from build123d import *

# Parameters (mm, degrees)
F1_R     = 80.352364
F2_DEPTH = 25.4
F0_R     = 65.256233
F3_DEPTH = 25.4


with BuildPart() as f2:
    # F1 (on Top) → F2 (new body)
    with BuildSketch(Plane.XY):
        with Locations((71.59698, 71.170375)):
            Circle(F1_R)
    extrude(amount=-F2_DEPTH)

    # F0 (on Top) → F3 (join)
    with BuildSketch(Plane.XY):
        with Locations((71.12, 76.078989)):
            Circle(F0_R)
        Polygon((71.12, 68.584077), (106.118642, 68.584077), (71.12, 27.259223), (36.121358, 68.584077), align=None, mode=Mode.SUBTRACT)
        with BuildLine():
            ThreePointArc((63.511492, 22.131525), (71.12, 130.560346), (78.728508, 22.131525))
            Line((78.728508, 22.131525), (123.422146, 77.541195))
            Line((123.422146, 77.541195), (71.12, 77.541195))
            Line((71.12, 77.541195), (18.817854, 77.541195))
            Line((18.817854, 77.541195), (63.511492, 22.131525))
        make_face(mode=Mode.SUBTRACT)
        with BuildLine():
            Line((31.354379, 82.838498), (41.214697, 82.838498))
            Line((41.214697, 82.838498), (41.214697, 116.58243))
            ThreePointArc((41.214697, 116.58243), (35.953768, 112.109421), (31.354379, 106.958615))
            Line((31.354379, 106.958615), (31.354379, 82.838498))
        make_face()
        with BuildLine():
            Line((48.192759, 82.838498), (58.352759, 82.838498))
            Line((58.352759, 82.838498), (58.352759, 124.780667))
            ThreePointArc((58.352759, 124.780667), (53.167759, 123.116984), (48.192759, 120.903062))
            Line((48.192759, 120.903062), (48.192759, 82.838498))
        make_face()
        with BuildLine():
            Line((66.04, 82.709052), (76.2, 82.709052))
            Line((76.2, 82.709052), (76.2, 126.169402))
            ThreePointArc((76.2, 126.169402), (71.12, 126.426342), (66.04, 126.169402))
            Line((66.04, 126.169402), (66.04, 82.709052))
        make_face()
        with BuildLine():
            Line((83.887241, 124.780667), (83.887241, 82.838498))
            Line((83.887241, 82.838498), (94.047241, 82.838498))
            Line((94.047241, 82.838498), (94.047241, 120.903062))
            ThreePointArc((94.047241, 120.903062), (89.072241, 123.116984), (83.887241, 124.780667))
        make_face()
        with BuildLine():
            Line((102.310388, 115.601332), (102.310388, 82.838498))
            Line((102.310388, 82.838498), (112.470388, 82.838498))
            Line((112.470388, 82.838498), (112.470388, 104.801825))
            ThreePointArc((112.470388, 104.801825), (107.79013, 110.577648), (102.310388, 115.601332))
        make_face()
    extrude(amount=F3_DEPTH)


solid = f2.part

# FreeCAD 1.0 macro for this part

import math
import FreeCAD as App
import Part
import Sketcher

V = App.Vector
Q = App.Units.Quantity

doc = App.newDocument("Part")
body = doc.addObject("PartDesign::Body", "Body")

# Sketch on XY plane
sketch1 = doc.addObject("Sketcher::SketchObject", "Sketch")
body.addObject(sketch1)
sketch1.AttachmentSupport = (doc.XY_Plane, [""])
sketch1.MapMode = "FlatFace"
sketch1.addGeometry(Part.Circle(V(72, 71, 0), V(0, 0, 1), 80), False)
sketch1.addConstraint([
    Sketcher.Constraint("Diameter", 0, Q("160.704728 mm")),
    Sketcher.Constraint("DistanceX", -1, 1, 0, 3, Q("71.59698 mm")),
    Sketcher.Constraint("DistanceY", -1, 1, 0, 3, Q("71.170375 mm")),
])
pad1 = doc.addObject("PartDesign::Pad", "Pad")
body.addObject(pad1)
pad1.Profile = sketch1
pad1.Length = Q("1 in")
pad1.Reversed = True

# Sketch on XY plane
sketch2 = doc.addObject("Sketcher::SketchObject", "Sketch001")
body.addObject(sketch2)
sketch2.AttachmentSupport = (doc.XY_Plane, [""])
sketch2.MapMode = "FlatFace"
sketch2.addGeometry([
    Part.Circle(V(71, 76, 0), V(0, 0, 1), 65),  # 0
    Part.LineSegment(V(36, 69, 0), V(106, 69, 0)),  # 1
    Part.LineSegment(V(106, 69, 0), V(71, 27, 0)),  # 2
    Part.LineSegment(V(71, 27, 0), V(36, 69, 0)),  # 3
    Part.LineSegment(V(19, 78, 0), V(64, 22, 0)),  # 4
    Part.ArcOfCircle(Part.Circle(V(71, 76, 0), V(0, 0, 1), 54), math.radians(-82), math.radians(262)),  # 5
    Part.LineSegment(V(79, 22, 0), V(123, 78, 0)),  # 6
    Part.LineSegment(V(123, 78, 0), V(19, 78, 0)),  # 7
    Part.LineSegment(V(31, 83, 0), V(41, 83, 0)),  # 8
    Part.LineSegment(V(41, 83, 0), V(41, 117, 0)),  # 9
    Part.ArcOfCircle(Part.Circle(V(71, 76, 0), V(0, 0, 1), 50), math.radians(126.44), math.radians(142.17)),  # 10
    Part.LineSegment(V(31, 107, 0), V(31, 83, 0)),  # 11
    Part.LineSegment(V(48, 83, 0), V(58, 83, 0)),  # 12
    Part.LineSegment(V(58, 83, 0), V(58, 125, 0)),  # 13
    Part.ArcOfCircle(Part.Circle(V(71, 76, 0), V(0, 0, 1), 50), math.radians(104.69), math.radians(117.09)),  # 14
    Part.LineSegment(V(48, 121, 0), V(48, 83, 0)),  # 15
    Part.LineSegment(V(66, 83, 0), V(76, 83, 0)),  # 16
    Part.LineSegment(V(76, 83, 0), V(76, 126, 0)),  # 17
    Part.ArcOfCircle(Part.Circle(V(71, 76, 0), V(0, 0, 1), 50), math.radians(84.21), math.radians(95.79)),  # 18
    Part.LineSegment(V(66, 126, 0), V(66, 83, 0)),  # 19
    Part.LineSegment(V(84, 125, 0), V(84, 83, 0)),  # 20
    Part.LineSegment(V(84, 83, 0), V(94, 83, 0)),  # 21
    Part.LineSegment(V(94, 83, 0), V(94, 121, 0)),  # 22
    Part.ArcOfCircle(Part.Circle(V(71, 76, 0), V(0, 0, 1), 50), math.radians(62.91), math.radians(75.31)),  # 23
    Part.LineSegment(V(102, 116, 0), V(102, 83, 0)),  # 24
    Part.LineSegment(V(102, 83, 0), V(112, 83, 0)),  # 25
    Part.LineSegment(V(112, 83, 0), V(112, 105, 0)),  # 26
    Part.ArcOfCircle(Part.Circle(V(71, 76, 0), V(0, 0, 1), 50), math.radians(34.78), math.radians(51.72)),  # 27
], False)
sketch2.addConstraint([
    Sketcher.Constraint("Coincident", 1, 2, 2, 1),
    Sketcher.Constraint("Coincident", 2, 2, 3, 1),
    Sketcher.Constraint("Coincident", 3, 2, 1, 1),
    Sketcher.Constraint("Coincident", 4, 2, 5, 2),
    Sketcher.Constraint("Coincident", 5, 1, 6, 1),
    Sketcher.Constraint("Coincident", 6, 2, 7, 1),
    Sketcher.Constraint("Coincident", 7, 2, 4, 1),
    Sketcher.Constraint("Coincident", 8, 2, 9, 1),
    Sketcher.Constraint("Coincident", 9, 2, 10, 1),
    Sketcher.Constraint("Coincident", 10, 2, 11, 1),
    Sketcher.Constraint("Coincident", 11, 2, 8, 1),
    Sketcher.Constraint("Coincident", 12, 2, 13, 1),
    Sketcher.Constraint("Coincident", 13, 2, 14, 1),
    Sketcher.Constraint("Coincident", 14, 2, 15, 1),
    Sketcher.Constraint("Coincident", 15, 2, 12, 1),
    Sketcher.Constraint("Coincident", 16, 2, 17, 1),
    Sketcher.Constraint("Coincident", 17, 2, 18, 1),
    Sketcher.Constraint("Coincident", 18, 2, 19, 1),
    Sketcher.Constraint("Coincident", 19, 2, 16, 1),
    Sketcher.Constraint("Coincident", 20, 2, 21, 1),
    Sketcher.Constraint("Coincident", 21, 2, 22, 1),
    Sketcher.Constraint("Coincident", 22, 2, 23, 1),
    Sketcher.Constraint("Coincident", 23, 2, 20, 1),
    Sketcher.Constraint("Coincident", 24, 2, 25, 1),
    Sketcher.Constraint("Coincident", 25, 2, 26, 1),
    Sketcher.Constraint("Coincident", 26, 2, 27, 1),
    Sketcher.Constraint("Coincident", 27, 2, 24, 1),
    Sketcher.Constraint("Horizontal", 1),
    Sketcher.Constraint("Horizontal", 7),
    Sketcher.Constraint("Horizontal", 8),
    Sketcher.Constraint("Vertical", 9),
    Sketcher.Constraint("Vertical", 11),
    Sketcher.Constraint("Horizontal", 12),
    Sketcher.Constraint("Vertical", 13),
    Sketcher.Constraint("Vertical", 15),
    Sketcher.Constraint("Horizontal", 16),
    Sketcher.Constraint("Vertical", 17),
    Sketcher.Constraint("Vertical", 19),
    Sketcher.Constraint("Vertical", 20),
    Sketcher.Constraint("Horizontal", 21),
    Sketcher.Constraint("Vertical", 22),
    Sketcher.Constraint("Vertical", 24),
    Sketcher.Constraint("Horizontal", 25),
    Sketcher.Constraint("Vertical", 26),
    Sketcher.Constraint("Coincident", 5, 3, 0, 3),
    Sketcher.Constraint("Coincident", 10, 3, 0, 3),
    Sketcher.Constraint("Coincident", 27, 3, 0, 3),
    Sketcher.Constraint("Equal", 14, 23),
    Sketcher.Constraint("Horizontal", 14, 3, 23, 3),
    Sketcher.Constraint("Horizontal", 4, 2, 5, 1),
    Sketcher.Constraint("Horizontal", 11, 2, 12, 2),
    Sketcher.Constraint("Horizontal", 17, 2, 18, 2),
    Sketcher.Constraint("Horizontal", 15, 2, 20, 2),
    Sketcher.Constraint("Horizontal", 14, 2, 22, 2),
    Sketcher.Constraint("Horizontal", 13, 2, 23, 2),
    Sketcher.Constraint("Horizontal", 21, 2, 24, 2),
    Sketcher.Constraint("Vertical", 5, 3, 18, 3),
    Sketcher.Constraint("Vertical", 18, 3, 2, 2),
    Sketcher.Constraint("Equal", 12, 16),
    Sketcher.Constraint("Equal", 21, 25),
    Sketcher.Constraint("Equal", 2, 3),
    Sketcher.Constraint("Equal", 4, 6),
    Sketcher.Constraint("DistanceX", 12, 1, 12, 2, Q("0.4 in")),
    Sketcher.Constraint("DistanceX", -1, 1, 16, 2, Q("3 in")),
    Sketcher.Constraint("Radius", 18, Q("50.347198 mm")),
    Sketcher.Constraint("Diameter", 0, Q("130.512466 mm")),
    Sketcher.Constraint("Radius", 5, Q("54.481357 mm")),
    Sketcher.Constraint("Radius", 10, Q("50.347347 mm")),
    Sketcher.Constraint("Radius", 14, Q("50.347286 mm")),
    Sketcher.Constraint("Radius", 27, Q("50.347344 mm")),
    Sketcher.Constraint("DistanceX", 7, 2, 7, 1, Q("104.604292 mm")),
    Sketcher.Constraint("DistanceY", 13, 1, 13, 2, Q("41.942169 mm")),
    Sketcher.Constraint("DistanceY", 17, 1, 17, 2, Q("43.46035 mm")),
    Sketcher.Constraint("DistanceY", -1, 1, 8, 2, Q("82.838498 mm")),
    Sketcher.Constraint("DistanceY", 27, 3, 6, 2, Q("1.4622 mm")),
    Sketcher.Constraint("DistanceX", 8, 2, 10, 3, Q("29.905298 mm")),
    Sketcher.Constraint("DistanceX", 3, 2, 15, 2, Q("12.071401 mm")),
    Sketcher.Constraint("DistanceY", 23, 3, 16, 2, Q("6.630001 mm")),
    Sketcher.Constraint("DistanceX", 21, 2, 1, 2, Q("12.071401 mm")),
    Sketcher.Constraint("Distance", 4, Q("71.188151 mm")),
    Sketcher.Constraint("DistanceX", 1, 1, 1, 2, Q("69.997284 mm")),
    Sketcher.Constraint("DistanceX", 8, 1, 8, 2, Q("9.860318 mm")),
    Sketcher.Constraint("DistanceY", 9, 1, 9, 2, Q("33.743932 mm")),
    Sketcher.Constraint("DistanceY", 15, 2, 15, 1, Q("38.064564 mm")),
    Sketcher.Constraint("DistanceY", 24, 2, 24, 1, Q("32.762834 mm")),
    Sketcher.Constraint("DistanceY", 1, 2, 5, 3, Q("7.494912 mm")),
    Sketcher.Constraint("DistanceY", 2, 2, 10, 3, Q("48.819769 mm")),
])
pad2 = doc.addObject("PartDesign::Pad", "Pad001")
body.addObject(pad2)
pad2.Profile = sketch2
pad2.Length = Q("1 in")

doc.recompute()
